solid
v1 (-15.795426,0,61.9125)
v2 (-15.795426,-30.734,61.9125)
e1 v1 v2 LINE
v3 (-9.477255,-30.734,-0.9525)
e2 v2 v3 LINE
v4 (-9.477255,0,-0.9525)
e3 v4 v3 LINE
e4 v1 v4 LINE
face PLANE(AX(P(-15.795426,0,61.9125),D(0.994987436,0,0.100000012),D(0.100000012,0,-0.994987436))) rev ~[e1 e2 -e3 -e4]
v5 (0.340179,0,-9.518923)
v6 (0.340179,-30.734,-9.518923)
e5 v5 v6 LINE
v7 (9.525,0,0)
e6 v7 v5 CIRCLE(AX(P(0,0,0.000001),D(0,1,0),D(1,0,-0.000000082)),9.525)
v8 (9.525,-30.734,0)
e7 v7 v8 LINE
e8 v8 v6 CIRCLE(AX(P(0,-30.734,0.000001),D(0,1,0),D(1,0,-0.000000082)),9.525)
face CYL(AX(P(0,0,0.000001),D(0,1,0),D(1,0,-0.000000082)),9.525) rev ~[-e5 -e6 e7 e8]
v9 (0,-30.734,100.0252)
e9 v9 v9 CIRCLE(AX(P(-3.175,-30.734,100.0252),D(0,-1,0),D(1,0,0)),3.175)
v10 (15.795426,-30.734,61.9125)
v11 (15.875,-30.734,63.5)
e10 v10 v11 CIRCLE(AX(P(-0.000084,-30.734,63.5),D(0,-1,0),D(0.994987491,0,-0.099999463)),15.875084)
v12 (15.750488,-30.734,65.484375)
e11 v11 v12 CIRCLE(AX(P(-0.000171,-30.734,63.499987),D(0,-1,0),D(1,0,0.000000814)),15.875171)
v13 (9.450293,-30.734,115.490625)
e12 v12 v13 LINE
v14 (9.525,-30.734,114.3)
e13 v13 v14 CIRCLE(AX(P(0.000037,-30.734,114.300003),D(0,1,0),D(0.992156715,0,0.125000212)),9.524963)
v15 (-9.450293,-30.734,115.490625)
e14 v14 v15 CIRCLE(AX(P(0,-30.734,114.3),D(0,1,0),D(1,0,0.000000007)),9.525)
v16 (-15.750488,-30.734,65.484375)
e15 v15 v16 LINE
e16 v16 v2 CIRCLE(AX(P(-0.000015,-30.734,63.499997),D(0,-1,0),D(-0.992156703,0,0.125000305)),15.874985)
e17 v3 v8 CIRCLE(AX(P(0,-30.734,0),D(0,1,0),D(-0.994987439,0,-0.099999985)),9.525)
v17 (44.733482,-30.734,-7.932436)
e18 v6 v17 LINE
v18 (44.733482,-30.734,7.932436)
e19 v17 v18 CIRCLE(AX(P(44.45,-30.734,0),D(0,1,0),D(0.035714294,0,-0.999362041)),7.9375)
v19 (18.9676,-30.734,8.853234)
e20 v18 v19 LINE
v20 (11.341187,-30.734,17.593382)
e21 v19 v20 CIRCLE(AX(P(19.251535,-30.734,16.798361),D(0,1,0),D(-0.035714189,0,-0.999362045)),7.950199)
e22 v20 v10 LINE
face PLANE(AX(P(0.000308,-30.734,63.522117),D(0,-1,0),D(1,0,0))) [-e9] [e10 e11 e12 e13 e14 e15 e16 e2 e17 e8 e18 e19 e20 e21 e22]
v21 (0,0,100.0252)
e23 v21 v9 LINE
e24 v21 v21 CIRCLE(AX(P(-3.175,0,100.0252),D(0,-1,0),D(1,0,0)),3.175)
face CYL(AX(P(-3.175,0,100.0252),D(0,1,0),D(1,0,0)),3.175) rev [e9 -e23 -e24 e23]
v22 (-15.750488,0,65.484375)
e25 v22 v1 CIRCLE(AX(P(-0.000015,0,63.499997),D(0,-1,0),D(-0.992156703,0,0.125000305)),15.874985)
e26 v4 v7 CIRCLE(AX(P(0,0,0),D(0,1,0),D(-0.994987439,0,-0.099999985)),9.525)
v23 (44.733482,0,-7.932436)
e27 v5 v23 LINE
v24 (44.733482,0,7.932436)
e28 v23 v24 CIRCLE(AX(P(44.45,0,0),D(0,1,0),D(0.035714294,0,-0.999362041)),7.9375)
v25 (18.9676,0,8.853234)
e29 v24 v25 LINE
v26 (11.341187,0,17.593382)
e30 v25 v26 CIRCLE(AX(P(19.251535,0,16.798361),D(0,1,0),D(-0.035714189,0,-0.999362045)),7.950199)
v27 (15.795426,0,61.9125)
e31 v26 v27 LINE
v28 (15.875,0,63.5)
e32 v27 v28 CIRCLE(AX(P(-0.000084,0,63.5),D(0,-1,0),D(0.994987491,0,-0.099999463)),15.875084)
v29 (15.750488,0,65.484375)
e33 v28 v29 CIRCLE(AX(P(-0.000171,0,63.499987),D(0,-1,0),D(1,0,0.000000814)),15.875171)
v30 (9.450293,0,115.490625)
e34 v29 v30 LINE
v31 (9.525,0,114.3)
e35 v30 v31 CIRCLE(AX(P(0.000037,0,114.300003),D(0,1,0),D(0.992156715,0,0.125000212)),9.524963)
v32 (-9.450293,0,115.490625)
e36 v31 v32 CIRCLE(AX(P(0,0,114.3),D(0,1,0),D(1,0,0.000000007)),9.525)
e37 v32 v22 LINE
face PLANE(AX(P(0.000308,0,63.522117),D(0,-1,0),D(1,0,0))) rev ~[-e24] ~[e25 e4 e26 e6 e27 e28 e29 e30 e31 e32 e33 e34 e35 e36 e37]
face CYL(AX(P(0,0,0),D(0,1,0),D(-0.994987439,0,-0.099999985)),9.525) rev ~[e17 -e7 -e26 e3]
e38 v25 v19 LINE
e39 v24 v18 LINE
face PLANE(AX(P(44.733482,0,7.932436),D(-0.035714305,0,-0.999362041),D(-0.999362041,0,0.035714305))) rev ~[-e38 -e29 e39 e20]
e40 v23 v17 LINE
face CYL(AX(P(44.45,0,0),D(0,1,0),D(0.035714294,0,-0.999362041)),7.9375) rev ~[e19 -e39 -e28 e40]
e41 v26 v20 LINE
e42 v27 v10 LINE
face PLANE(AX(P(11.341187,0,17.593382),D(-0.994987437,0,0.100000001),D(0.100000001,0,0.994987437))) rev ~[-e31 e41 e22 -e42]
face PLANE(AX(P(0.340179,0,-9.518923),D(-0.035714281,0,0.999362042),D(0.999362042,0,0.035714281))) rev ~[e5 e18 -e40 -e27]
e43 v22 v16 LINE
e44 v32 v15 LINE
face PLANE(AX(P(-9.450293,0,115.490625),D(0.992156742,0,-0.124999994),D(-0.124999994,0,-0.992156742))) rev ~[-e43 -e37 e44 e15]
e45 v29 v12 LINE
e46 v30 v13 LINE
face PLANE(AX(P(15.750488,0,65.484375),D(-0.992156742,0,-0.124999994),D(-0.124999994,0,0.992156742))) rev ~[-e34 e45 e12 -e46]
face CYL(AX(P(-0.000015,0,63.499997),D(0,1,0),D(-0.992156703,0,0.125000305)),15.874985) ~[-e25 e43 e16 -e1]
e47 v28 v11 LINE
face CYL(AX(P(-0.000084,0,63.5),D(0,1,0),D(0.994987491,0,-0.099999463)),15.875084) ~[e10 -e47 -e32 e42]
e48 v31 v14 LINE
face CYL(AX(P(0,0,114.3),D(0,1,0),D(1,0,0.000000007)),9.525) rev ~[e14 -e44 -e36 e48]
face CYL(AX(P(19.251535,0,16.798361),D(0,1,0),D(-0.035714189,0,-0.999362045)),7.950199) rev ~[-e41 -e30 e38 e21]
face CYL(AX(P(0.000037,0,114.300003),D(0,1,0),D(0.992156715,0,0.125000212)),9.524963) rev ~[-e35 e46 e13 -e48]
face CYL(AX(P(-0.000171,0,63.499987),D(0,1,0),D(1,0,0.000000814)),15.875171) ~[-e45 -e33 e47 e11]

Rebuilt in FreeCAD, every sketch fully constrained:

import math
import FreeCAD as App
import Part
import Sketcher

V = App.Vector
Q = App.Units.Quantity

doc = App.newDocument("Part")
params = doc.addObject("Spreadsheet::Sheet", "Params")
for row, (alias, value) in enumerate([
    ("sketch1_diameter", "0.25 in"),
    ("sketch1_radius", "0.375 in"),
    ("sketch1_radius2", "0.375 in"),
    ("sketch1_radius3", "0.3125 in"),
    ("sketch1_radius4", "0.313 in"),
    ("pad1_length", "1.21 in"),
], start=1):
    params.set(f"A{row}", alias)
    params.set(f"B{row}", "=" + value)
    params.setAlias(f"B{row}", alias)

body = doc.addObject("PartDesign::Body", "Body")

# Sketch on XZ plane
sketch1 = body.newObject("Sketcher::SketchObject", "Sketch")
sketch1.AttachmentSupport = (doc.getObject("XZ_Plane"), [""])
sketch1.MapMode = "FlatFace"
sketch1.addGeometry(Part.ArcOfCircle(Part.Circle(V(-0.000084, 63.5, 0), V(0, 0, 1), 15.875084), math.radians(-5.73914), math.radians(0)), False)
sketch1.addGeometry(Part.ArcOfCircle(Part.Circle(V(-0.000171, 63.499987, 0), V(0, 0, 1), 15.875171), math.radians(0.000047), math.radians(7.180725)), False)
sketch1.addGeometry(Part.LineSegment(V(15.750488, 65.484375, 0), V(9.450293, 115.490625, 0)), False)
sketch1.addGeometry(Part.ArcOfCircle(Part.Circle(V(0.000037, 114.300003, 0), V(0, 0, 1), 9.524963), math.radians(-0.000016), math.radians(7.180768)), False)
sketch1.addGeometry(Part.ArcOfCircle(Part.Circle(V(0, 114.3, 0), V(0, 0, 1), 9.525), math.radians(172.819244), math.radians(360)), False)
sketch1.addGeometry(Part.LineSegment(V(-9.450293, 115.490625, 0), V(-15.750488, 65.484375, 0)), False)
sketch1.addGeometry(Part.ArcOfCircle(Part.Circle(V(-0.000015, 63.499997, 0), V(0, 0, 1), 15.874985), math.radians(172.819227), math.radians(185.739165)), False)
sketch1.addGeometry(Part.LineSegment(V(-15.795426, 61.9125, 0), V(-9.477255, -0.9525, 0)), False)
sketch1.addGeometry(Part.ArcOfCircle(Part.Circle(V(0, 0, 0), V(0, 0, 1), 9.525), math.radians(0.000001), math.radians(185.73917)), False)
sketch1.addGeometry(Part.ArcOfCircle(Part.Circle(V(0, 0.000001, 0), V(0, 0, 1), 9.525), math.radians(-87.953282), math.radians(-0.000005)), False)
sketch1.addGeometry(Part.LineSegment(V(0.340179, -9.518923, 0), V(44.733482, -7.932436, 0)), False)
sketch1.addGeometry(Part.ArcOfCircle(Part.Circle(V(44.45, 0, 0), V(0, 0, 1), 7.9375), math.radians(87.953286), math.radians(272.046714)), False)
sketch1.addGeometry(Part.LineSegment(V(44.733482, 7.932436, 0), V(18.9676, 8.853234, 0)), False)
sketch1.addGeometry(Part.ArcOfCircle(Part.Circle(V(19.251535, 16.798361, 0), V(0, 0, 1), 7.950199), math.radians(174.260822), math.radians(267.953292)), False)
sketch1.addGeometry(Part.LineSegment(V(11.341187, 17.593382, 0), V(15.795426, 61.9125, 0)), False)
sketch1.addGeometry(Part.Circle(V(-3.175, 100.0252, 0), V(0, 0, 1), 3.175), False)
sketch1.addConstraint(Sketcher.Constraint("Coincident", 0, 2, 1, 1))
sketch1.addConstraint(Sketcher.Constraint("Coincident", 1, 2, 2, 1))
sketch1.addConstraint(Sketcher.Constraint("Coincident", 2, 2, 3, 2))
sketch1.addConstraint(Sketcher.Constraint("Coincident", 3, 1, 4, 2))
sketch1.addConstraint(Sketcher.Constraint("Coincident", 4, 1, 5, 1))
sketch1.addConstraint(Sketcher.Constraint("Coincident", 5, 2, 6, 1))
sketch1.addConstraint(Sketcher.Constraint("Coincident", 6, 2, 7, 1))
sketch1.addConstraint(Sketcher.Constraint("Coincident", 7, 2, 8, 2))
sketch1.addConstraint(Sketcher.Constraint("Coincident", 8, 1, 9, 2))
sketch1.addConstraint(Sketcher.Constraint("Coincident", 9, 1, 10, 1))
sketch1.addConstraint(Sketcher.Constraint("Coincident", 10, 2, 11, 2))
sketch1.addConstraint(Sketcher.Constraint("Coincident", 11, 1, 12, 1))
sketch1.addConstraint(Sketcher.Constraint("Coincident", 12, 2, 13, 2))
sketch1.addConstraint(Sketcher.Constraint("Coincident", 13, 1, 14, 1))
sketch1.addConstraint(Sketcher.Constraint("Coincident", 14, 2, 0, 1))
sketch1.addConstraint(Sketcher.Constraint("Coincident", 8, 3, -1, 1))
sketch1.addConstraint(Sketcher.Constraint("Coincident", 9, 3, -1, 1))
sketch1.addConstraint(Sketcher.Constraint("PointOnObject", 4, 3, -2))
sketch1.addConstraint(Sketcher.Constraint("PointOnObject", 11, 3, -1))
sketch1.addConstraint(Sketcher.Constraint("PointOnObject", 8, 1, -1))
sketch1.addConstraint(Sketcher.Constraint("Diameter", 15, Q("0.25 in")))
sketch1.addConstraint(Sketcher.Constraint("Radius", 4, Q("0.375 in")))
sketch1.addConstraint(Sketcher.Constraint("Radius", 8, Q("0.375 in")))
sketch1.addConstraint(Sketcher.Constraint("Radius", 11, Q("0.3125 in")))
sketch1.addConstraint(Sketcher.Constraint("Radius", 13, Q("0.313 in")))
sketch1.addConstraint(Sketcher.Constraint("DistanceY", 0, 3, 3, 3, Q("2.0000001 in")))
sketch1.addConstraint(Sketcher.Constraint("DistanceY", 0, 3, 4, 3, Q("2 in")))
sketch1.addConstraint(Sketcher.Constraint("DistanceY", 6, 3, 4, 3, Q("2.0000001 in")))
sketch1.addConstraint(Sketcher.Constraint("DistanceY", -1, 1, 0, 3, Q("2.5 in")))
sketch1.addConstraint(Sketcher.Constraint("DistanceY", -1, 1, 0, 2, Q("2.5 in")))
sketch1.addConstraint(Sketcher.Constraint("DistanceY", -1, 1, 3, 1, Q("4.5 in")))
sketch1.addConstraint(Sketcher.Constraint("DistanceX", 15, 3, 3, 1, Q("0.5 in")))
sketch1.addConstraint(Sketcher.Constraint("DistanceX", -1, 1, 11, 3, Q("1.75 in")))
sketch1.addConstraint(Sketcher.Constraint("DistanceX", 15, 3, 0, 2, Q("0.75 in")))
sketch1.addConstraint(Sketcher.Constraint("DistanceY", -1, 1, 15, 3, Q("3.938 in")))
sketch1.addConstraint(Sketcher.Constraint("DistanceY", -1, 1, 1, 2, Q("2.578125 in")))
sketch1.addConstraint(Sketcher.Constraint("DistanceY", -1, 1, 2, 2, Q("4.546875 in")))
sketch1.addConstraint(Sketcher.Constraint("DistanceY", -1, 1, 4, 1, Q("4.546875 in")))
sketch1.addConstraint(Sketcher.Constraint("DistanceY", -1, 1, 5, 2, Q("2.578125 in")))
sketch1.addConstraint(Sketcher.Constraint("DistanceY", -1, 1, 6, 2, Q("2.4375 in")))
sketch1.addConstraint(Sketcher.Constraint("DistanceY", -1, 1, 14, 2, Q("2.4375 in")))
sketch1.addConstraint(Sketcher.Constraint("Radius", 1, 15.875171))
sketch1.addConstraint(Sketcher.Constraint("DistanceY", 7, 2, 6, 2, Q("2.475 in")))
sketch1.addConstraint(Sketcher.Constraint("Radius", 0, 15.875084))
sketch1.addConstraint(Sketcher.Constraint("Radius", 3, 9.524963))
sketch1.addConstraint(Sketcher.Constraint("Radius", 6, 15.874985))
sketch1.addConstraint(Sketcher.Constraint("DistanceY", 13, 3, 13, 1, Q("0.0313 in")))
sketch1.addConstraint(Sketcher.Constraint("DistanceX", -1, 1, 12, 2, 18.9676))
sketch1.addConstraint(Sketcher.Constraint("Distance", 12, 25.78233))
sketch1.addConstraint(Sketcher.Constraint("Distance", 14, 44.54239))
sketch1.addConstraint(Sketcher.Constraint("DistanceY", -1, 1, 13, 3, 16.798361))
sketch1.addConstraint(Sketcher.Constraint("DistanceX", -1, 1, 1, 2, 15.750488))
sketch1.addConstraint(Sketcher.Constraint("DistanceX", 5, 2, -1, 1, 15.750488))
sketch1.addConstraint(Sketcher.Constraint("DistanceX", -1, 1, 9, 1, 0.340179))
sketch1.addConstraint(Sketcher.Constraint("DistanceX", 8, 3, 10, 2, 44.733482))
sketch1.setExpression("Constraints[20]", "Params.sketch1_diameter")
sketch1.setExpression("Constraints[21]", "Params.sketch1_radius")
sketch1.setExpression("Constraints[22]", "Params.sketch1_radius2")
sketch1.setExpression("Constraints[23]", "Params.sketch1_radius3")
sketch1.setExpression("Constraints[24]", "Params.sketch1_radius4")
pad1 = body.newObject("PartDesign::Pad", "Pad")
pad1.Profile = sketch1
pad1.setExpression("Length", "Params.pad1_length")

doc.recompute()
